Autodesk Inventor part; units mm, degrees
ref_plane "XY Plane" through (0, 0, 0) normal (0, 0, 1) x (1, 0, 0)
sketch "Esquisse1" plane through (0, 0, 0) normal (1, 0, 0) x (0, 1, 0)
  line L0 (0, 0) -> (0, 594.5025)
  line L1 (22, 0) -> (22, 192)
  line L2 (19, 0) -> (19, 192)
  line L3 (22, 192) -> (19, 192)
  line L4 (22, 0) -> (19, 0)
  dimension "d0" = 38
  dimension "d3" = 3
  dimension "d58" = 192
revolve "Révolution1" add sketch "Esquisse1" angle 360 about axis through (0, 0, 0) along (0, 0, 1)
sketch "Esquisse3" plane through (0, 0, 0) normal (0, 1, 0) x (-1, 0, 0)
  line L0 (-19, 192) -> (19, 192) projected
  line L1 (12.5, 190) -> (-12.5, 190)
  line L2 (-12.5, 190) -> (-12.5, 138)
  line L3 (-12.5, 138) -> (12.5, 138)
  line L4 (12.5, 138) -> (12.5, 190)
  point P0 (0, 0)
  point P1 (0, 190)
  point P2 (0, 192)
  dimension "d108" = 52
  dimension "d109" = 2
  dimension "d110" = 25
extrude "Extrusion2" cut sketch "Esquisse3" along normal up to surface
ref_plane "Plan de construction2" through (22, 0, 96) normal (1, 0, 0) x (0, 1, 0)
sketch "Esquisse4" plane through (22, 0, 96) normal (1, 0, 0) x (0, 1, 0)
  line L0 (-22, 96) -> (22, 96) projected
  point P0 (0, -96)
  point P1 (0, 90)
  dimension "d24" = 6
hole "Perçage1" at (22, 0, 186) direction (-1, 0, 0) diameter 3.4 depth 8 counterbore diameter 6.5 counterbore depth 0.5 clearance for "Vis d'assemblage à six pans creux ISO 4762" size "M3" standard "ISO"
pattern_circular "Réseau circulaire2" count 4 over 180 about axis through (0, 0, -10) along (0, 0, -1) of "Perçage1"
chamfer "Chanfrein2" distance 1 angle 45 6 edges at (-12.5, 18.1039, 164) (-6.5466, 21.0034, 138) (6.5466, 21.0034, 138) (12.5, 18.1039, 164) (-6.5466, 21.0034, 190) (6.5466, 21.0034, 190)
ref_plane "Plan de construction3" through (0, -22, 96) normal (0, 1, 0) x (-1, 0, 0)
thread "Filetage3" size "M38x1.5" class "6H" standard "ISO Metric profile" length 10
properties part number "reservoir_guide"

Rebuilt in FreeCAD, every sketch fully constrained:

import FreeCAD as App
import Part
import Sketcher


def edges_at(feature, points):
    """Names of the edges that pass closest to the given points."""
    edges = feature.Shape.Edges
    near = lambda p: min(range(len(edges)), key=lambda i: edges[i].distToShape(Part.Vertex(*p))[0])
    return sorted({f"Edge{near(p) + 1}" for p in points})

doc = App.newDocument("Part")
body = doc.addObject("PartDesign::Body", "Body")

sketch1 = doc.addObject("Sketcher::SketchObject", "Sketch")
body.addObject(sketch1)
sketch1.AttachmentSupport = (doc.YZ_Plane, [""])
sketch1.MapMode = "FlatFace"
sketch1.addGeometry(Part.LineSegment(App.Vector(19, 0, 0), App.Vector(22, 0, 0)), False)
sketch1.addGeometry(Part.LineSegment(App.Vector(22, 0, 0), App.Vector(22, 192, 0)), False)
sketch1.addGeometry(Part.LineSegment(App.Vector(22, 192, 0), App.Vector(19, 192, 0)), False)
sketch1.addGeometry(Part.LineSegment(App.Vector(19, 192, 0), App.Vector(19, 0, 0)), False)
sketch1.addConstraint(Sketcher.Constraint("Coincident", 0, 2, 1, 1))
sketch1.addConstraint(Sketcher.Constraint("Coincident", 1, 2, 2, 1))
sketch1.addConstraint(Sketcher.Constraint("Coincident", 2, 2, 3, 1))
sketch1.addConstraint(Sketcher.Constraint("Coincident", 3, 2, 0, 1))
sketch1.addConstraint(Sketcher.Constraint("Horizontal", 0))
sketch1.addConstraint(Sketcher.Constraint("Vertical", 1))
sketch1.addConstraint(Sketcher.Constraint("Horizontal", 2))
sketch1.addConstraint(Sketcher.Constraint("Vertical", 3))
sketch1.addConstraint(Sketcher.Constraint("PointOnObject", 0, 2, -1))
sketch1.addConstraint(Sketcher.Constraint("DistanceX", 0, 1, 0, 2, 3.0))
sketch1.addConstraint(Sketcher.Constraint("DistanceY", 1, 1, 1, 2, 192.0))
sketch1.addConstraint(Sketcher.Constraint("DistanceX", -1, 1, 0, 2, 22.0))
revolution = doc.addObject("PartDesign::Revolution", "Revolution")
body.addObject(revolution)
revolution.Profile = sketch1
revolution.ReferenceAxis = (sketch1, ["V_Axis"])
revolution.Angle = 360

sketch2 = doc.addObject("Sketcher::SketchObject", "Sketch001")
body.addObject(sketch2)
sketch2.AttachmentSupport = (doc.XZ_Plane, [""])
sketch2.MapMode = "FlatFace"
sketch2.addGeometry(Part.LineSegment(App.Vector(-12, 138, 0), App.Vector(-12, 190, 0)), False)
sketch2.addGeometry(Part.LineSegment(App.Vector(-12, 190, 0), App.Vector(12, 190, 0)), False)
sketch2.addGeometry(Part.LineSegment(App.Vector(12, 190, 0), App.Vector(12, 138, 0)), False)
sketch2.addGeometry(Part.LineSegment(App.Vector(12, 138, 0), App.Vector(-12, 138, 0)), False)
sketch2.addConstraint(Sketcher.Constraint("Coincident", 0, 2, 1, 1))
sketch2.addConstraint(Sketcher.Constraint("Coincident", 1, 2, 2, 1))
sketch2.addConstraint(Sketcher.Constraint("Coincident", 2, 2, 3, 1))
sketch2.addConstraint(Sketcher.Constraint("Coincident", 3, 2, 0, 1))
sketch2.addConstraint(Sketcher.Constraint("Vertical", 0))
sketch2.addConstraint(Sketcher.Constraint("Horizontal", 1))
sketch2.addConstraint(Sketcher.Constraint("Vertical", 2))
sketch2.addConstraint(Sketcher.Constraint("Horizontal", 3))
sketch2.addConstraint(Sketcher.Constraint("DistanceX", 1, 1, 1, 2, 25.0))
sketch2.addConstraint(Sketcher.Constraint("DistanceY", 0, 1, 0, 2, 52.0))
sketch2.addConstraint(Sketcher.Constraint("DistanceY", -1, 1, 0, 2, 190.0))
sketch2.addConstraint(Sketcher.Constraint("DistanceX", 0, 2, -1, 1, 12.5))
pocket1 = doc.addObject("PartDesign::Pocket", "Pocket")
body.addObject(pocket1)
pocket1.Profile = sketch2
pocket1.Length = 22

sketch3 = doc.addObject("Sketcher::SketchObject", "Sketch002")
body.addObject(sketch3)
sketch3.AttachmentSupport = (doc.YZ_Plane, [""])
sketch3.MapMode = "FlatFace"
sketch3.AttachmentOffset = App.Placement(App.Vector(0, 0, 22), App.Rotation())
sketch3.addGeometry(Part.Circle(App.Vector(0, 186, 0), App.Vector(0, 0, 1), 1.7), False)
sketch3.addConstraint(Sketcher.Constraint("PointOnObject", 0, 3, -2))
sketch3.addConstraint(Sketcher.Constraint("Diameter", 0, 3.4))
sketch3.addConstraint(Sketcher.Constraint("DistanceY", -1, 1, 0, 3, 186.0))
doc.recompute()
hole = doc.addObject("PartDesign::Hole", "Hole")
body.addObject(hole)
hole.Profile = sketch3
hole.ThreadType = "None"
hole.Diameter = 3.4
hole.DepthType = "Dimension"
hole.Depth = 8
hole.DrillPoint = "Flat"
hole.HoleCutType = "Counterbore"
hole.HoleCutDiameter = 6.5
hole.HoleCutDepth = 0.5
doc.recompute()

polarpattern = doc.addObject("PartDesign::PolarPattern", "PolarPattern")
body.addObject(polarpattern)
polarpattern.Originals = [hole]
polarpattern.Axis = (doc.Z_Axis, [""])
polarpattern.Angle = 180
polarpattern.Occurrences = 4
polarpattern.Reversed = True
body.Tip = polarpattern
doc.recompute()

chamfer = doc.addObject("PartDesign::Chamfer", "Chamfer")
body.addObject(chamfer)
chamfer.Base = (polarpattern, edges_at(polarpattern, [
    (-12.5, 18.104, 164),
    (-6.547, 21.003, 138),
    (6.547, 21.003, 138),
    (12.5, 18.104, 164),
    (-6.547, 21.003, 190),
    (6.547, 21.003, 190),
]))
chamfer.Size = 1

doc.recompute()
